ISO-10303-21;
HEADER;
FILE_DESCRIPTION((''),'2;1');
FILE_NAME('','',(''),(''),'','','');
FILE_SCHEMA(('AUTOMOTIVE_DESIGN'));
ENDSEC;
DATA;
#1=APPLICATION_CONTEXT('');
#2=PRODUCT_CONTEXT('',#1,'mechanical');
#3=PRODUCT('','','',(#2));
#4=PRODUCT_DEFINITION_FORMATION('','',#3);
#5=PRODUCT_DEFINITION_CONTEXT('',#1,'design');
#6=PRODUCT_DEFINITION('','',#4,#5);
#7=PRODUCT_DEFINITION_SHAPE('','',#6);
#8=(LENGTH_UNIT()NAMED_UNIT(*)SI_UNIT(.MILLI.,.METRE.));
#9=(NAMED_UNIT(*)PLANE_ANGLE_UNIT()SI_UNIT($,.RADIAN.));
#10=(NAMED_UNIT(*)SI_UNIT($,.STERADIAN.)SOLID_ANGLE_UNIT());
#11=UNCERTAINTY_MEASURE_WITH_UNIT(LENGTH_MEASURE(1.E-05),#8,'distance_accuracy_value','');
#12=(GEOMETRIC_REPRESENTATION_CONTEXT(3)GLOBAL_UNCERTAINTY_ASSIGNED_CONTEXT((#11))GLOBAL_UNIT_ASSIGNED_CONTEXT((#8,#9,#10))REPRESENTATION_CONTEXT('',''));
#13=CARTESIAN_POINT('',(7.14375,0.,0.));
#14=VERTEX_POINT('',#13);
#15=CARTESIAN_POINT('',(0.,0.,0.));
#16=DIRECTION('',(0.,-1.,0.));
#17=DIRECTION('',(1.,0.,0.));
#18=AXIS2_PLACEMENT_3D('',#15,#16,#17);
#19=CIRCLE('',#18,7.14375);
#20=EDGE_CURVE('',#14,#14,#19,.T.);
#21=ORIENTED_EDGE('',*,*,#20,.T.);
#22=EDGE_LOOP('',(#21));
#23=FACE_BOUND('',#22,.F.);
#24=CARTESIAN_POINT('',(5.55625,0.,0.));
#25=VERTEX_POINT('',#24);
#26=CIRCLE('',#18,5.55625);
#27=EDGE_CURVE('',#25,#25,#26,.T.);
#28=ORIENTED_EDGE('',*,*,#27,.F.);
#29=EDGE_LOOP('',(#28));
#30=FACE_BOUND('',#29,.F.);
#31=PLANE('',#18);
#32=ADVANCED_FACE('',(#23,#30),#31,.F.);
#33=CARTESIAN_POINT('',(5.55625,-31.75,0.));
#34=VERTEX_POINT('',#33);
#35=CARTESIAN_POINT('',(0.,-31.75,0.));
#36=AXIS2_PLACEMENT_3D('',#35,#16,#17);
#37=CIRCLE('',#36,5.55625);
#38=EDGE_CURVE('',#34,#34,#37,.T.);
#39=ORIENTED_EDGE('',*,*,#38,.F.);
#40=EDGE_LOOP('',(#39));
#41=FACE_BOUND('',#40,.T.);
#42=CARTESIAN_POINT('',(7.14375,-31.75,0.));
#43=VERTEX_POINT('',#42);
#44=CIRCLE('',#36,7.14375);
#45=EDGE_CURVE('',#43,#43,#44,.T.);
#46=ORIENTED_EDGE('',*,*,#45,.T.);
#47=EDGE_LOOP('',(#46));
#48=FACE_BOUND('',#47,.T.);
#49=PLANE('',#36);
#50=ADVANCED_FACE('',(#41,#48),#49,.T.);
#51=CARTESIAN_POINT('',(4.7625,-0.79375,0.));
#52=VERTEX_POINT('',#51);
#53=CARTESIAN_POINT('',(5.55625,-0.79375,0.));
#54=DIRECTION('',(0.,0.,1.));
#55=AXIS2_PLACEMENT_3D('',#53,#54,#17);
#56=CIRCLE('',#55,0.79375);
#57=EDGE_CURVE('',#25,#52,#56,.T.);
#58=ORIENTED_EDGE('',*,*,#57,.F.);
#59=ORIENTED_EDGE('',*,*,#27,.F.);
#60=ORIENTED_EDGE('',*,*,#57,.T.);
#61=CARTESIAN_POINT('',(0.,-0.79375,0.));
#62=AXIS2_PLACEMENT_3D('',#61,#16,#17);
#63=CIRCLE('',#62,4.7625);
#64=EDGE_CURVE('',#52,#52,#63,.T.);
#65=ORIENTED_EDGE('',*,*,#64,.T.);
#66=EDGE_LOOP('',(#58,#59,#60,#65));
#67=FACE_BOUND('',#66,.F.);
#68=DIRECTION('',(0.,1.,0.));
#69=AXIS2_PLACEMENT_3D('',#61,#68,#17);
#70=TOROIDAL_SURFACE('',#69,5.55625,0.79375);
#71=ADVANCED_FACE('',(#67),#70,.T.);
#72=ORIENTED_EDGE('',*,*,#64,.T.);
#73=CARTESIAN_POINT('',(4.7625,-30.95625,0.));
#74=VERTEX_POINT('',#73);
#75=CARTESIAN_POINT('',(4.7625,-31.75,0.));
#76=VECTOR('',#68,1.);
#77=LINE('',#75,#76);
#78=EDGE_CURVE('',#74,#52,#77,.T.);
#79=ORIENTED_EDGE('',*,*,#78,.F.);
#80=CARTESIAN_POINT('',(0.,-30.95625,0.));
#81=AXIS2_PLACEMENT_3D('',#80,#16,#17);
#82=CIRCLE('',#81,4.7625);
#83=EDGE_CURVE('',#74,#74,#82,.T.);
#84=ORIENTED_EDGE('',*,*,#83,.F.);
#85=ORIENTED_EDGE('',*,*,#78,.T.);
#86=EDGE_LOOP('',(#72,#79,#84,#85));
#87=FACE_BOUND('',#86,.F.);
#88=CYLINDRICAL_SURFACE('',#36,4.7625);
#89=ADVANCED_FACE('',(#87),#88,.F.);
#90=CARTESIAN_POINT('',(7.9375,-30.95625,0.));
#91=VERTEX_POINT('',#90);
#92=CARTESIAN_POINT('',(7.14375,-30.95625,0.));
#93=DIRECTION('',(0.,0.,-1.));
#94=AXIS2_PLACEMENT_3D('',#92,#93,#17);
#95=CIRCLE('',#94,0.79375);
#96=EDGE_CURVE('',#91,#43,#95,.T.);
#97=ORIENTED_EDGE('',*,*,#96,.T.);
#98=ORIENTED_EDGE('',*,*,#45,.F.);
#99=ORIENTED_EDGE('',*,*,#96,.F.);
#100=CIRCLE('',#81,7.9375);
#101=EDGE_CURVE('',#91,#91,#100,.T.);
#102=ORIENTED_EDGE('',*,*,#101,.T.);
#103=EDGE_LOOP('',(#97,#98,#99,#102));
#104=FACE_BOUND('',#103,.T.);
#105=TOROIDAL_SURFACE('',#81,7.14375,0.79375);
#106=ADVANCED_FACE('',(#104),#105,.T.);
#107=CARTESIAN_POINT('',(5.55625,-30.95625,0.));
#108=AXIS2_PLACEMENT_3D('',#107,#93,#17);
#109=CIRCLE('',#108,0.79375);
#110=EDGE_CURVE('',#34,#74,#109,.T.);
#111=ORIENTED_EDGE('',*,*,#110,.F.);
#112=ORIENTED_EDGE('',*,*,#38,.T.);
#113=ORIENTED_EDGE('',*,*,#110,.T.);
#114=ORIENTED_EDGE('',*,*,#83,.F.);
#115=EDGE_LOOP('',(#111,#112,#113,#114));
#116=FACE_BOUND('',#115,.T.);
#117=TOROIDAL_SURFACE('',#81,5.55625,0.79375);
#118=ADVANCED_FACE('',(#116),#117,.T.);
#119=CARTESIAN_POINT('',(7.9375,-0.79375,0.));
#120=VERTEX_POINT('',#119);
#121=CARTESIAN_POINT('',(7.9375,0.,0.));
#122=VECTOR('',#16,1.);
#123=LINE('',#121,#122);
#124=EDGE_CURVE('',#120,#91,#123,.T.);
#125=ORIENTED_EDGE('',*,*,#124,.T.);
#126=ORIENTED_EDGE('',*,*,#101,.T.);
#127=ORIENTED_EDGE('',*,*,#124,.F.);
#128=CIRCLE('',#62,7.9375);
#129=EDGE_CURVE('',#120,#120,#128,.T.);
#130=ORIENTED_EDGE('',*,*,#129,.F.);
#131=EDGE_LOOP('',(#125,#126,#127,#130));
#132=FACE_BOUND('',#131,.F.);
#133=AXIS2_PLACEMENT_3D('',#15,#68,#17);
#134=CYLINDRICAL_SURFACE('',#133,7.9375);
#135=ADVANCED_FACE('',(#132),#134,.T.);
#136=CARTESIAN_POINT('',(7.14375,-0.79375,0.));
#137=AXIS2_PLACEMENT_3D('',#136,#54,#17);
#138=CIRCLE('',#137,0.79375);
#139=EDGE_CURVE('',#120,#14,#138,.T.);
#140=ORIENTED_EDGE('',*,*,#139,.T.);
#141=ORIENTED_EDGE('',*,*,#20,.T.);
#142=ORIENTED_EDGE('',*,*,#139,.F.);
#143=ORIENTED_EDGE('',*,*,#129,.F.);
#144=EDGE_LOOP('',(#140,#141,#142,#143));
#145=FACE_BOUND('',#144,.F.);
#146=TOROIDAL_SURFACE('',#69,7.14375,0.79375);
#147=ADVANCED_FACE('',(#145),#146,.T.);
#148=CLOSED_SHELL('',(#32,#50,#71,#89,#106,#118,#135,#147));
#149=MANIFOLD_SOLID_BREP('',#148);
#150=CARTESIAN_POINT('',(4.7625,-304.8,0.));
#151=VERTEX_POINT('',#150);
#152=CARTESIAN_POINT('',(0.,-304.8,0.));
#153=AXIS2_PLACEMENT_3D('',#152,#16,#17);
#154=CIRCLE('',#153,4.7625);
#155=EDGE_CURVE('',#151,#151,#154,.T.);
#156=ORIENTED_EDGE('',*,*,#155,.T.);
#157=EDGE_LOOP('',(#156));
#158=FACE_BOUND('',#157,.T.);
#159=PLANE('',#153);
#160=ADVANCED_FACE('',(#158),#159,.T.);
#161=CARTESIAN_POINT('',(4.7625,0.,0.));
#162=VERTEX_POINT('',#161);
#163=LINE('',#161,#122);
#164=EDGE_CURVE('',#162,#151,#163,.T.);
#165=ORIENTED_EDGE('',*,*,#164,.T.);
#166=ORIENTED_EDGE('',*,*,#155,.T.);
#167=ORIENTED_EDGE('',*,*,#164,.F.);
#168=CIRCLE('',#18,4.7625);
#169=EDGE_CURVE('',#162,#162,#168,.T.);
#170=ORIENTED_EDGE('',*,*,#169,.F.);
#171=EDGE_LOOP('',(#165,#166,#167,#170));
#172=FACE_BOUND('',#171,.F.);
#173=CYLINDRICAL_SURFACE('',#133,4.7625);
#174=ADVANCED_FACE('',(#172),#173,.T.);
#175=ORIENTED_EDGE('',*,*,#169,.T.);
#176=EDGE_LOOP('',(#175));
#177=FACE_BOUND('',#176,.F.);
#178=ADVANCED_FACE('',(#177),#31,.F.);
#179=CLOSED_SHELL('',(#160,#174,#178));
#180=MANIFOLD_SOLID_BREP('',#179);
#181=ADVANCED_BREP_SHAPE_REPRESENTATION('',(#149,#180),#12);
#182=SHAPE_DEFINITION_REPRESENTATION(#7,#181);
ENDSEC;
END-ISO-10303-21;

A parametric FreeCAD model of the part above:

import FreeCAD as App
import Part
import Sketcher
Q = App.Units.Quantity


def edges_at(feature, points):
    """Names of the edges that pass closest to the given points."""
    edges = feature.Shape.Edges
    near = lambda p: min(range(len(edges)), key=lambda i: edges[i].distToShape(Part.Vertex(*p))[0])
    return sorted({f"Edge{near(p) + 1}" for p in points})

doc = App.newDocument("Part")
body = doc.addObject("PartDesign::Body", "Body")

# Sketch on XZ plane
sketch1 = body.newObject("Sketcher::SketchObject", "Sketch")
sketch1.AttachmentSupport = (doc.getObject("XZ_Plane"), [""])
sketch1.MapMode = "FlatFace"
sketch1.addGeometry(Part.Circle(App.Vector(0, 0, 0), App.Vector(0, 0, 1), 8), False)
sketch1.addConstraint(Sketcher.Constraint("Coincident", 0, 3, -1, 1))
sketch1.addConstraint(Sketcher.Constraint("Diameter", 0, Q("0.625 in")))
pad1 = body.newObject("PartDesign::Pad", "Pad")
pad1.Profile = sketch1
pad1.Length = Q("1.25 in")

# Sketch on XZ plane
sketch2 = body.newObject("Sketcher::SketchObject", "Sketch001")
sketch2.AttachmentSupport = (doc.getObject("XZ_Plane"), [""])
sketch2.MapMode = "FlatFace"
sketch2.AttachmentOffset = App.Placement(App.Vector(0, 0, 1.25 * 25.4), App.Rotation())
sketch2.addGeometry(Part.Circle(App.Vector(0, 0, 0), App.Vector(0, 0, 1), 4.8), False)
sketch2.addConstraint(Sketcher.Constraint("Coincident", 0, 3, -1, 1))
sketch2.addConstraint(Sketcher.Constraint("Diameter", 0, Q("0.375 in")))
pocket1 = body.newObject("PartDesign::Pocket", "Pocket")
pocket1.Profile = sketch2
pocket1.Type = "ThroughAll"
doc.recompute()

fillet = body.newObject("PartDesign::Fillet", "Fillet")
fillet.Base = (pocket1, edges_at(pocket1, [
    (-7.938, -31.75, 0),
    (-4.763, -31.75, 0),
    (-7.938, 0, 0),
    (-4.763, 0, 0),
]))
fillet.Radius = Q("0.03125 in")
body2 = doc.addObject("PartDesign::Body", "Body001")

# Sketch on XZ plane
sketch3 = body2.newObject("Sketcher::SketchObject", "Sketch002")
sketch3.AttachmentSupport = (doc.getObject("XZ_Plane001"), [""])
sketch3.MapMode = "FlatFace"
sketch3.addGeometry(Part.Circle(App.Vector(0, 0, 0), App.Vector(0, 0, 1), 4.8), False)
sketch3.addConstraint(Sketcher.Constraint("Coincident", 0, 3, -1, 1))
sketch3.addConstraint(Sketcher.Constraint("Diameter", 0, Q("0.375 in")))
pad2 = body2.newObject("PartDesign::Pad", "Pad001")
pad2.Profile = sketch3
pad2.Length = Q("12 in")

doc.recompute()
